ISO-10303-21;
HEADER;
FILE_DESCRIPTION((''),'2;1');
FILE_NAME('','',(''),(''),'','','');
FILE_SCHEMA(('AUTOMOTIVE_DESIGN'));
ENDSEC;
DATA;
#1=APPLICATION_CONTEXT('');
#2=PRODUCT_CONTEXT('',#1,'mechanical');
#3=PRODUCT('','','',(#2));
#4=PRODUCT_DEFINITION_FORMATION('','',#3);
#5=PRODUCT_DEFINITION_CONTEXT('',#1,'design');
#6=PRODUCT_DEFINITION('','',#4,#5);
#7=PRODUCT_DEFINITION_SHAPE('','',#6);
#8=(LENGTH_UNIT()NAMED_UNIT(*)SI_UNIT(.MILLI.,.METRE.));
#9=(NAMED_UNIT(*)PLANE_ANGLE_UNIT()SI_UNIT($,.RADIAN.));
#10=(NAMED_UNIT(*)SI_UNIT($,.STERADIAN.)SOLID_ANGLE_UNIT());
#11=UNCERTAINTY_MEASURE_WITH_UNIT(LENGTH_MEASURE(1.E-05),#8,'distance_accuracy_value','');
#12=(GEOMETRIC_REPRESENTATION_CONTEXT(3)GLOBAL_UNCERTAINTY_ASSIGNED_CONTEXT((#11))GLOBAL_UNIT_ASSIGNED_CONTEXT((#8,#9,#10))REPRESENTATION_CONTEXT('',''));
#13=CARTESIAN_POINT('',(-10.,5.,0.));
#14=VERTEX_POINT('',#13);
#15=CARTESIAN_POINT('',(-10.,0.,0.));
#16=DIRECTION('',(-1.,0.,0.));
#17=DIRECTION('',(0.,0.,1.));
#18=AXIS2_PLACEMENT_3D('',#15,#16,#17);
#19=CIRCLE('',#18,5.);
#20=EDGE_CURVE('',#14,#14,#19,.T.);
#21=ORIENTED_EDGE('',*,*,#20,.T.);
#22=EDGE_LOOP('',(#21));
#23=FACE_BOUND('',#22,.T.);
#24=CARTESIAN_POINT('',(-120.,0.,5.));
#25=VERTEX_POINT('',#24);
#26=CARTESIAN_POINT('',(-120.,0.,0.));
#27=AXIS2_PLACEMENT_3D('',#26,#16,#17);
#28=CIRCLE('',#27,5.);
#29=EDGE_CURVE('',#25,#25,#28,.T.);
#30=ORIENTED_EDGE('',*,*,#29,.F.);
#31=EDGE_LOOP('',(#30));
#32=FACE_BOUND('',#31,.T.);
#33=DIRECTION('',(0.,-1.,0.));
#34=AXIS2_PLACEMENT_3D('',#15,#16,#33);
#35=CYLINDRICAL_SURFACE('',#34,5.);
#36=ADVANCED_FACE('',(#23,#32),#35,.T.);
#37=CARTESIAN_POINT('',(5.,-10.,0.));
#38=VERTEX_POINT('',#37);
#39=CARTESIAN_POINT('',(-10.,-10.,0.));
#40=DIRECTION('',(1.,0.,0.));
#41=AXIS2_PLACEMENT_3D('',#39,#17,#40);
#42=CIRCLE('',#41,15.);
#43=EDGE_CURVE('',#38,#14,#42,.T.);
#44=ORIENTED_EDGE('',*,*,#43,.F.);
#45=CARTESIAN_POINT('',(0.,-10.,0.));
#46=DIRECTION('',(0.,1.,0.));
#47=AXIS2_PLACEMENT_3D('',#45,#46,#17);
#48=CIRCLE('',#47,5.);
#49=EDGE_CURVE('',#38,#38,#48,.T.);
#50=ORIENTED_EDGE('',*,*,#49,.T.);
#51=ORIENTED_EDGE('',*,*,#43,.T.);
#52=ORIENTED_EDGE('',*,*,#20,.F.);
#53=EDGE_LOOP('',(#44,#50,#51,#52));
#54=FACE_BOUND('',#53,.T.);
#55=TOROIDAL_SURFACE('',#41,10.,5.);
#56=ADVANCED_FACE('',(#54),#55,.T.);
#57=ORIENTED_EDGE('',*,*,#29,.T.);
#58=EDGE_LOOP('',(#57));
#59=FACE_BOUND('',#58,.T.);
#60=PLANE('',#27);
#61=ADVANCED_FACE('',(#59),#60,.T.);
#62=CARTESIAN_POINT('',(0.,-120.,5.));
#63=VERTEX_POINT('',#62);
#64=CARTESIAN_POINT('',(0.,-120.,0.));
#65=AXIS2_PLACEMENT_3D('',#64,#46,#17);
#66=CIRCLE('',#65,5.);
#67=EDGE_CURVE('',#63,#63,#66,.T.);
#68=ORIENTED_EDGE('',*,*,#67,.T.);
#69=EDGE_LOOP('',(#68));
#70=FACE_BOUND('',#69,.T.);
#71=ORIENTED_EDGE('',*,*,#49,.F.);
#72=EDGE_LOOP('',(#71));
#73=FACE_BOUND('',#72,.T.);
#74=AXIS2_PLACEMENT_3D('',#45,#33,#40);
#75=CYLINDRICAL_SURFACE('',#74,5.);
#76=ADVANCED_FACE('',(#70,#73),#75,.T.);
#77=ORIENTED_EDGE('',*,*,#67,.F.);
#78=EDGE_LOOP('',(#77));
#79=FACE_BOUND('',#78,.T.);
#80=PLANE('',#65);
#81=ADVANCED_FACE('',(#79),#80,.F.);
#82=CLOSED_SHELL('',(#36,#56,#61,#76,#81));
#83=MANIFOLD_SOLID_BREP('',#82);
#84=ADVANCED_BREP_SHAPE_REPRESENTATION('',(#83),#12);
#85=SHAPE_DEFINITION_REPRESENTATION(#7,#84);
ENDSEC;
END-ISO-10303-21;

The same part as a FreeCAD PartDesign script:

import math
import FreeCAD as App
import Part
import Sketcher

V = App.Vector
Q = App.Units.Quantity

doc = App.newDocument("Part")
body = doc.addObject("PartDesign::Body", "Body")

# Sketch on XZ plane
sketch1 = body.newObject("Sketcher::SketchObject", "Sketch")
sketch1.AttachmentSupport = (doc.getObject("XZ_Plane"), [""])
sketch1.MapMode = "FlatFace"
sketch1.AttachmentOffset = App.Placement(V(0, 0, 120), App.Rotation())
sketch1.addGeometry(Part.Circle(V(0, 0, 0), V(0, 0, 1), 5), False)
sketch1.addConstraint(Sketcher.Constraint("Coincident", 0, 3, -1, 1))
sketch1.addConstraint(Sketcher.Constraint("Diameter", 0, Q("10 mm")))

# Sketch on XY plane
sketch2 = body.newObject("Sketcher::SketchObject", "Sketch001")
sketch2.AttachmentSupport = (doc.getObject("XY_Plane"), [""])
sketch2.MapMode = "FlatFace"
sketch2.addGeometry(Part.LineSegment(V(-120, 0, 0), V(-10, 0, 0)), False)
sketch2.addGeometry(Part.ArcOfCircle(Part.Circle(V(-10, -10, 0), V(0, 0, 1), 10), math.radians(0), math.radians(90)), False)
sketch2.addGeometry(Part.LineSegment(V(0, -10, 0), V(0, -120, 0)), False)
sketch2.addConstraint(Sketcher.Constraint("Tangent", 0, 2, 1, 2))
sketch2.addConstraint(Sketcher.Constraint("Tangent", 1, 1, 2, 1))
sketch2.addConstraint(Sketcher.Constraint("Horizontal", 0))
sketch2.addConstraint(Sketcher.Constraint("Vertical", 2))
sketch2.addConstraint(Sketcher.Constraint("PointOnObject", 0, 1, -1))
sketch2.addConstraint(Sketcher.Constraint("PointOnObject", 1, 1, -2))
sketch2.addConstraint(Sketcher.Constraint("Equal", 0, 2))
sketch2.addConstraint(Sketcher.Constraint("Radius", 1, Q("10 mm")))
sketch2.addConstraint(Sketcher.Constraint("DistanceX", 0, 1, 0, 2, Q("110 mm")))
doc.recompute()

additivepipe = body.newObject("PartDesign::AdditivePipe", "AdditivePipe")
additivepipe.Profile = sketch1
additivepipe.Spine = (sketch2, ["Edge1", "Edge2", "Edge3"])

doc.recompute()
